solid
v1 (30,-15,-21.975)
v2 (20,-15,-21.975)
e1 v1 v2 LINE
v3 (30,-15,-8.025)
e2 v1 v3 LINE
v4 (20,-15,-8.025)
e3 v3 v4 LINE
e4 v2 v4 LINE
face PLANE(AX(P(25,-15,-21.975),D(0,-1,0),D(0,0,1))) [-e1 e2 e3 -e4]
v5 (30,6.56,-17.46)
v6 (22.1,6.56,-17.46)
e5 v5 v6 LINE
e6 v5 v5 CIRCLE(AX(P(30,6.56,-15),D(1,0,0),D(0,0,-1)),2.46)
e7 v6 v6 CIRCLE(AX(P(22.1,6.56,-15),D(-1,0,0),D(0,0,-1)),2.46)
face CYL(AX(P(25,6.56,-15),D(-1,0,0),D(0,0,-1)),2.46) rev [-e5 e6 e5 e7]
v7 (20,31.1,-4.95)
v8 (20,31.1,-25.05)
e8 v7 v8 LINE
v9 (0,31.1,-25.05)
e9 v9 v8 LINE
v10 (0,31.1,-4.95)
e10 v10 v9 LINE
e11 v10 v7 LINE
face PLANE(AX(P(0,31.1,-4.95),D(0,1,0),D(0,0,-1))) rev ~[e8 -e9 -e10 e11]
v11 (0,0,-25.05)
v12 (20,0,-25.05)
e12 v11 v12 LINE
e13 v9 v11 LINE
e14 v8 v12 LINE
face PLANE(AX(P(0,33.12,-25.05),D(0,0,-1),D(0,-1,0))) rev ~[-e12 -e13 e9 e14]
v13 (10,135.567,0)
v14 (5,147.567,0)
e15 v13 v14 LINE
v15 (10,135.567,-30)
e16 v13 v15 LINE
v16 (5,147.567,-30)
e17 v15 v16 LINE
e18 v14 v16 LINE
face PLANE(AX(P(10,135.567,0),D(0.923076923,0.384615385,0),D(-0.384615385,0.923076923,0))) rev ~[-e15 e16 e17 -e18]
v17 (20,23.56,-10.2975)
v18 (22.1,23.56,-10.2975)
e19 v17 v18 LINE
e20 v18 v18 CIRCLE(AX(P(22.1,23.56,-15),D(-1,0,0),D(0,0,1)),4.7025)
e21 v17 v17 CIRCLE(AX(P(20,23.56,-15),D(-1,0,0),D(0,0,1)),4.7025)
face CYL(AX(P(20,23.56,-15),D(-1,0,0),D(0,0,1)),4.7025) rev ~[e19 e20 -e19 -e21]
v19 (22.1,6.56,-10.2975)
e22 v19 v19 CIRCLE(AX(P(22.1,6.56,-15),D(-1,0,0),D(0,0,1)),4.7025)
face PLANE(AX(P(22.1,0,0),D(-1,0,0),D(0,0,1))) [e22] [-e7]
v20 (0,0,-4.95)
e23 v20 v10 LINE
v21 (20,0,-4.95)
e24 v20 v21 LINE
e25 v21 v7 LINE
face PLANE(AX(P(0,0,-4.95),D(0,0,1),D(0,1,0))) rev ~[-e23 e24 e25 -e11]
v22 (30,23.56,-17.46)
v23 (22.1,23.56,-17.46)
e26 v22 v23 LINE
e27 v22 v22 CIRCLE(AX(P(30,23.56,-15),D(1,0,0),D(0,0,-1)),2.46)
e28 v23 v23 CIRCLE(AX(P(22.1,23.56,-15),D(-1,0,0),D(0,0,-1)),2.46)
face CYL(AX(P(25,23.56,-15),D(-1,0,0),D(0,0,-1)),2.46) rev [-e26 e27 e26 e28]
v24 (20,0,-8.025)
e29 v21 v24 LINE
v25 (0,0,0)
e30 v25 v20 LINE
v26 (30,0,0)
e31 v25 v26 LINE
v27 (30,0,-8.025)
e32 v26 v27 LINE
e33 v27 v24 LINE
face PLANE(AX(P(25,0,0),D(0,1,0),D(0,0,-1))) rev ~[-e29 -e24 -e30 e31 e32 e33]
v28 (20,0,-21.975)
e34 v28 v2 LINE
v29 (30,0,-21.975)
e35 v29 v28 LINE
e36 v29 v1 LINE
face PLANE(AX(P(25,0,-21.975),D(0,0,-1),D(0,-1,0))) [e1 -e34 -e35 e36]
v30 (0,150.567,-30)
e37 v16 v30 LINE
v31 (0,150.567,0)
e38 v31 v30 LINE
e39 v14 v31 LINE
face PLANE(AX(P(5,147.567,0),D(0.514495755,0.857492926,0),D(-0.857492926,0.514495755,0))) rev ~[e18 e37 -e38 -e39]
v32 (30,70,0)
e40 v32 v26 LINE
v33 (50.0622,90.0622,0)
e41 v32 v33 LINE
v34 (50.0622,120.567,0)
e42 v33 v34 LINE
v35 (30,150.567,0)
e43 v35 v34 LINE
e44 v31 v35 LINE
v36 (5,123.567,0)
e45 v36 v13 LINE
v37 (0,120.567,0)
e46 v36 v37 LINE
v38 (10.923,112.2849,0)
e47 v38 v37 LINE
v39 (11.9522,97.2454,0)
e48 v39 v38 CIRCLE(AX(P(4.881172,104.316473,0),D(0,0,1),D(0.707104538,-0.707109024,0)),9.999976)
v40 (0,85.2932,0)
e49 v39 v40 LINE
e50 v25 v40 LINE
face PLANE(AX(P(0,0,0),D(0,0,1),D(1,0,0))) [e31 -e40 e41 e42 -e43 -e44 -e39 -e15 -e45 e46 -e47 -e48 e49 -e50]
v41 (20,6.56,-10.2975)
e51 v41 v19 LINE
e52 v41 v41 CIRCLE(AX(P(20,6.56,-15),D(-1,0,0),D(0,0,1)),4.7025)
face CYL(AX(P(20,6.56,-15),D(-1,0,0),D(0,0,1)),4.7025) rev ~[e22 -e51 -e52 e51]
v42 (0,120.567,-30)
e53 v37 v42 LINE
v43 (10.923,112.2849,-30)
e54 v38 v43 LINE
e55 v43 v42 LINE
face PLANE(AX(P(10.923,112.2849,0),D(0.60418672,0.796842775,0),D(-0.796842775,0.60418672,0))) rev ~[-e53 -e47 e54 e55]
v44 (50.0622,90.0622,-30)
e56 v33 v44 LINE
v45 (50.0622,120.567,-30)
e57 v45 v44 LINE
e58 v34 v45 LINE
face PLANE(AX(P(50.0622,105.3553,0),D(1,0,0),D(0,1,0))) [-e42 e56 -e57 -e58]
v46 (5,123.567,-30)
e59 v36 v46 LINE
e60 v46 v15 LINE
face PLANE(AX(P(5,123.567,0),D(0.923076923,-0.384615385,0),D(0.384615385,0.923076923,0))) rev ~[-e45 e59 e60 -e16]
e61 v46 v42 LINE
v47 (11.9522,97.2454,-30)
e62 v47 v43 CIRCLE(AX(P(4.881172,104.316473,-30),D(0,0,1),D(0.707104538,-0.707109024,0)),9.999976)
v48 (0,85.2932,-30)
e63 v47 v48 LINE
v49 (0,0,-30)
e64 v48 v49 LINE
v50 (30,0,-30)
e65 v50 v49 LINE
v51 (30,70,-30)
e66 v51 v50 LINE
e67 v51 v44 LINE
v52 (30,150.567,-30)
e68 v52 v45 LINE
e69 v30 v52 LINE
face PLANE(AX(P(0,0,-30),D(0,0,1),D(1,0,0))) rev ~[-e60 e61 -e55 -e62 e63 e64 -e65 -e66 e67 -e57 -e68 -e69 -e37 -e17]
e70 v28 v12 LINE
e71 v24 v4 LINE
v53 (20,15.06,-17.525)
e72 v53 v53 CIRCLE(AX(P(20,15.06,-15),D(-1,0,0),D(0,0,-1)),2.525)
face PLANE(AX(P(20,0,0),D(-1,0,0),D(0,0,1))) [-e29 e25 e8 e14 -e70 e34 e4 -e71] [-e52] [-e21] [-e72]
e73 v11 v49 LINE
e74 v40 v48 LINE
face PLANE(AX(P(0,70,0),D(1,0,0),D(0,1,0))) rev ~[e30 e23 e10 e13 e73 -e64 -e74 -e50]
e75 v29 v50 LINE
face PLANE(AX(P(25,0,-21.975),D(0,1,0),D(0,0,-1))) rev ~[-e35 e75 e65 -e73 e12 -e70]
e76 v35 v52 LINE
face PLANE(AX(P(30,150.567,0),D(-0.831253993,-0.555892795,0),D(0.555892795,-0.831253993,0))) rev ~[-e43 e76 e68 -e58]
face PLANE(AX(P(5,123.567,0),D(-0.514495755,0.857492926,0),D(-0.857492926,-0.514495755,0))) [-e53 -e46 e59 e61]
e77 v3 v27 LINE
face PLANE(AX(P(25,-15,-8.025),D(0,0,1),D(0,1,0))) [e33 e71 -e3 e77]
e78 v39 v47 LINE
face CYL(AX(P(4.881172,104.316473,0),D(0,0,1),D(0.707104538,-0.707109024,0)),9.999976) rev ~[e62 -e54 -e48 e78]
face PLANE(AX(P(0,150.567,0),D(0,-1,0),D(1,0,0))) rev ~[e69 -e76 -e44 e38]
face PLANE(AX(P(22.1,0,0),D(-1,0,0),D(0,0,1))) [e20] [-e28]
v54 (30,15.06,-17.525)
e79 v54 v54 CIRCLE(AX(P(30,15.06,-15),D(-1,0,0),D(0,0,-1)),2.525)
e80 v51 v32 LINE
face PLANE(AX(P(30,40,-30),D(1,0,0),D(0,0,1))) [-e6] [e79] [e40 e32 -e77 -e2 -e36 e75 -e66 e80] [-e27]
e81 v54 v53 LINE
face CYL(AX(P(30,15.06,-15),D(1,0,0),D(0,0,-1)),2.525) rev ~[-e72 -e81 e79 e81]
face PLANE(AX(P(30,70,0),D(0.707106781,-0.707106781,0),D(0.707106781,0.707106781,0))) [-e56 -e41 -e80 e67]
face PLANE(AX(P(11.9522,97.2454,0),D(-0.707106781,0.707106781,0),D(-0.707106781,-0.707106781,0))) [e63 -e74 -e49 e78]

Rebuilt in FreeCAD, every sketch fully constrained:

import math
import FreeCAD as App
import Part
import Sketcher
from FreeCAD import Vector
Q = App.Units.Quantity

doc = App.newDocument("Part")
body = doc.addObject("PartDesign::Body", "Body")

sketch1 = body.newObject("Sketcher::SketchObject", "Sketch")
sketch1.AttachmentSupport = (doc.getObject("XY_Plane"), [""])
sketch1.MapMode = "FlatFace"
sketch1.addGeometry(Part.LineSegment(Vector(0, 40, 0), Vector(0, 0, 0)), False)
sketch1.addGeometry(Part.LineSegment(Vector(0, 0, 0), Vector(25, 0, 0)), False)
sketch1.addGeometry(Part.LineSegment(Vector(25, 0, 0), Vector(25, 40, 0)), False)
sketch1.addGeometry(Part.LineSegment(Vector(25, 40, 0), Vector(0, 40, 0)), False)
sketch1.addConstraint(Sketcher.Constraint("Coincident", 0, 2, 1, 1))
sketch1.addConstraint(Sketcher.Constraint("Coincident", 1, 2, 2, 1))
sketch1.addConstraint(Sketcher.Constraint("Coincident", 2, 2, 3, 1))
sketch1.addConstraint(Sketcher.Constraint("Coincident", 3, 2, 0, 1))
sketch1.addConstraint(Sketcher.Constraint("Vertical", 0))
sketch1.addConstraint(Sketcher.Constraint("Horizontal", 1))
sketch1.addConstraint(Sketcher.Constraint("Vertical", 2))
sketch1.addConstraint(Sketcher.Constraint("Horizontal", 3))
sketch1.addConstraint(Sketcher.Constraint("Coincident", 0, 2, -1, 1))
sketch1.addConstraint(Sketcher.Constraint("DistanceX", 1, 1, 1, 2, Q("25 mm")))
sketch1.addConstraint(Sketcher.Constraint("DistanceY", 0, 2, 0, 1, Q("40 mm")))
pad1 = body.newObject("PartDesign::Pad", "Pad")
pad1.Profile = sketch1
pad1.Length = 30
pad1.Reversed = True

sketch2 = body.newObject("Sketcher::SketchObject", "Sketch001")
sketch2.AttachmentSupport = (doc.getObject("YZ_Plane"), [""])
sketch2.MapMode = "FlatFace"
sketch2.AttachmentOffset = App.Placement(Vector(0, 0, 25), App.Rotation())
sketch2.addGeometry(Part.Circle(Vector(6.6, -15, 0), Vector(0, 0, 1), 2.5), False)
sketch2.addConstraint(Sketcher.Constraint("Diameter", 0, Q("4.92 mm")))
sketch2.addConstraint(Sketcher.Constraint("DistanceY", 0, 3, -1, 1, Q("15 mm")))
sketch2.addConstraint(Sketcher.Constraint("DistanceX", -1, 1, 0, 3, Q("6.56 mm")))
pocket1 = body.newObject("PartDesign::Pocket", "Pocket")
pocket1.Profile = sketch2
pocket1.Length = 30

sketch3 = body.newObject("Sketcher::SketchObject", "Sketch002")
sketch3.AttachmentSupport = (doc.getObject("YZ_Plane"), [""])
sketch3.MapMode = "FlatFace"
sketch3.addGeometry(Part.LineSegment(Vector(0, -25, 0), Vector(0, -5, 0)), False)
sketch3.addGeometry(Part.LineSegment(Vector(0, -5, 0), Vector(33, -5, 0)), False)
sketch3.addGeometry(Part.LineSegment(Vector(33, -5, 0), Vector(33, -25, 0)), False)
sketch3.addGeometry(Part.LineSegment(Vector(33, -25, 0), Vector(0, -25, 0)), False)
sketch3.addConstraint(Sketcher.Constraint("Coincident", 0, 2, 1, 1))
sketch3.addConstraint(Sketcher.Constraint("Coincident", 1, 2, 2, 1))
sketch3.addConstraint(Sketcher.Constraint("Coincident", 2, 2, 3, 1))
sketch3.addConstraint(Sketcher.Constraint("Coincident", 3, 2, 0, 1))
sketch3.addConstraint(Sketcher.Constraint("Vertical", 0))
sketch3.addConstraint(Sketcher.Constraint("Horizontal", 1))
sketch3.addConstraint(Sketcher.Constraint("Vertical", 2))
sketch3.addConstraint(Sketcher.Constraint("Horizontal", 3))
sketch3.addConstraint(Sketcher.Constraint("PointOnObject", 0, 2, -2))
sketch3.addConstraint(Sketcher.Constraint("DistanceY", 0, 1, 0, 2, Q("20.1 mm")))
sketch3.addConstraint(Sketcher.Constraint("DistanceX", 1, 1, 1, 2, Q("33.12 mm")))
sketch3.addConstraint(Sketcher.Constraint("DistanceY", 0, 2, -1, 1, Q("4.95 mm")))
pocket2 = body.newObject("PartDesign::Pocket", "Pocket001")
pocket2.Profile = sketch3
pocket2.Length = 20
pocket2.Reversed = True

sketch4 = body.newObject("Sketcher::SketchObject", "Sketch003")
sketch4.AttachmentSupport = (doc.getObject("XZ_Plane"), [""])
sketch4.MapMode = "FlatFace"
sketch4.addGeometry(Part.LineSegment(Vector(25, -8, 0), Vector(20, -8, 0)), False)
sketch4.addGeometry(Part.LineSegment(Vector(20, -8, 0), Vector(20, -22, 0)), False)
sketch4.addGeometry(Part.LineSegment(Vector(20, -22, 0), Vector(25, -22, 0)), False)
sketch4.addGeometry(Part.LineSegment(Vector(25, -22, 0), Vector(25, -8, 0)), False)
sketch4.addConstraint(Sketcher.Constraint("Coincident", 0, 2, 1, 1))
sketch4.addConstraint(Sketcher.Constraint("Coincident", 1, 2, 2, 1))
sketch4.addConstraint(Sketcher.Constraint("Coincident", 2, 2, 3, 1))
sketch4.addConstraint(Sketcher.Constraint("Coincident", 3, 2, 0, 1))
sketch4.addConstraint(Sketcher.Constraint("Horizontal", 0))
sketch4.addConstraint(Sketcher.Constraint("Vertical", 1))
sketch4.addConstraint(Sketcher.Constraint("Horizontal", 2))
sketch4.addConstraint(Sketcher.Constraint("Vertical", 3))
sketch4.addConstraint(Sketcher.Constraint("DistanceY", 1, 2, 1, 1, Q("13.95 mm")))
sketch4.addConstraint(Sketcher.Constraint("DistanceX", 0, 2, 0, 1, Q("5 mm")))
sketch4.addConstraint(Sketcher.Constraint("DistanceX", -1, 1, 0, 2, Q("20 mm")))
sketch4.addConstraint(Sketcher.Constraint("DistanceY", 0, 2, -1, 1, Q("8.025 mm")))
pad2 = body.newObject("PartDesign::Pad", "Pad001")
pad2.Profile = sketch4
pad2.Length = 15

sketch5 = body.newObject("Sketcher::SketchObject", "Sketch004")
sketch5.AttachmentSupport = (doc.getObject("YZ_Plane"), [""])
sketch5.MapMode = "FlatFace"
sketch5.AttachmentOffset = App.Placement(Vector(0, 0, 20), App.Rotation())
sketch5.addGeometry(Part.Circle(Vector(6.6, -15, 0), Vector(0, 0, 1), 4.7), False)
sketch5.addGeometry(Part.Circle(Vector(6.6, -15, 0), Vector(0, 0, 1), 2.5), False)
sketch5.addConstraint(Sketcher.Constraint("Coincident", 1, 3, 0, 3))
sketch5.addConstraint(Sketcher.Constraint("Diameter", 0, Q("9.405 mm")))
sketch5.addConstraint(Sketcher.Constraint("Diameter", 1, Q("4.92 mm")))
sketch5.addConstraint(Sketcher.Constraint("DistanceY", 0, 3, -1, 1, Q("15 mm")))
sketch5.addConstraint(Sketcher.Constraint("DistanceX", -1, 1, 0, 3, Q("6.56 mm")))
pocket3 = body.newObject("PartDesign::Pocket", "Pocket002")
pocket3.Profile = sketch5
pocket3.Length = 2.1
pocket3.Reversed = True

sketch6 = body.newObject("Sketcher::SketchObject", "Sketch005")
sketch6.AttachmentSupport = (doc.getObject("YZ_Plane"), [""])
sketch6.MapMode = "FlatFace"
sketch6.AttachmentOffset = App.Placement(Vector(0, 0, 25), App.Rotation())
sketch6.addGeometry(Part.Circle(Vector(23.6, -15, 0), Vector(0, 0, 1), 2.5), False)
sketch6.addConstraint(Sketcher.Constraint("Diameter", 0, Q("4.92 mm")))
sketch6.addConstraint(Sketcher.Constraint("DistanceY", 0, 3, -1, 1, Q("15 mm")))
sketch6.addConstraint(Sketcher.Constraint("DistanceX", -1, 1, 0, 3, Q("23.56 mm")))
pocket4 = body.newObject("PartDesign::Pocket", "Pocket003")
pocket4.Profile = sketch6
pocket4.Length = 10

sketch7 = body.newObject("Sketcher::SketchObject", "Sketch006")
sketch7.AttachmentSupport = (doc.getObject("YZ_Plane"), [""])
sketch7.MapMode = "FlatFace"
sketch7.AttachmentOffset = App.Placement(Vector(0, 0, 20), App.Rotation())
sketch7.addGeometry(Part.Circle(Vector(23.6, -15, 0), Vector(0, 0, 1), 4.7), False)
sketch7.addGeometry(Part.Circle(Vector(23.6, -15, 0), Vector(0, 0, 1), 2.5), False)
sketch7.addConstraint(Sketcher.Constraint("Coincident", 1, 3, 0, 3))
sketch7.addConstraint(Sketcher.Constraint("Diameter", 0, Q("9.405 mm")))
sketch7.addConstraint(Sketcher.Constraint("Diameter", 1, Q("4.92 mm")))
sketch7.addConstraint(Sketcher.Constraint("DistanceY", 0, 3, -1, 1, Q("15 mm")))
sketch7.addConstraint(Sketcher.Constraint("DistanceX", -1, 1, 0, 3, Q("23.56 mm")))
pocket5 = body.newObject("PartDesign::Pocket", "Pocket004")
pocket5.Profile = sketch7
pocket5.Length = 2.1
pocket5.Reversed = True

sketch8 = body.newObject("Sketcher::SketchObject", "Sketch007")
sketch8.AttachmentSupport = (doc.getObject("YZ_Plane"), [""])
sketch8.MapMode = "FlatFace"
sketch8.AttachmentOffset = App.Placement(Vector(0, 0, 25), App.Rotation())
sketch8.addGeometry(Part.LineSegment(Vector(0, -30, 0), Vector(40, -30, 0)), False)
sketch8.addGeometry(Part.LineSegment(Vector(40, -30, 0), Vector(40, 0, 0)), False)
sketch8.addGeometry(Part.LineSegment(Vector(40, 0, 0), Vector(0, 0, 0)), False)
sketch8.addGeometry(Part.LineSegment(Vector(0, 0, 0), Vector(0, -8, 0)), False)
sketch8.addGeometry(Part.LineSegment(Vector(0, -8, 0), Vector(-15, -8, 0)), False)
sketch8.addGeometry(Part.LineSegment(Vector(-15, -8, 0), Vector(-15, -22, 0)), False)
sketch8.addGeometry(Part.LineSegment(Vector(-15, -22, 0), Vector(0, -22, 0)), False)
sketch8.addGeometry(Part.LineSegment(Vector(0, -22, 0), Vector(0, -30, 0)), False)
sketch8.addGeometry(Part.Circle(Vector(6.6, -15, 0), Vector(0, 0, 1), 2.5), False)
sketch8.addGeometry(Part.Circle(Vector(23.6, -15, 0), Vector(0, 0, 1), 2.5), False)
sketch8.addConstraint(Sketcher.Constraint("Coincident", 0, 2, 1, 1))
sketch8.addConstraint(Sketcher.Constraint("Coincident", 1, 2, 2, 1))
sketch8.addConstraint(Sketcher.Constraint("Coincident", 2, 2, 3, 1))
sketch8.addConstraint(Sketcher.Constraint("Coincident", 3, 2, 4, 1))
sketch8.addConstraint(Sketcher.Constraint("Coincident", 4, 2, 5, 1))
sketch8.addConstraint(Sketcher.Constraint("Coincident", 5, 2, 6, 1))
sketch8.addConstraint(Sketcher.Constraint("Coincident", 6, 2, 7, 1))
sketch8.addConstraint(Sketcher.Constraint("Coincident", 7, 2, 0, 1))
sketch8.addConstraint(Sketcher.Constraint("Horizontal", 0))
sketch8.addConstraint(Sketcher.Constraint("Vertical", 1))
sketch8.addConstraint(Sketcher.Constraint("Horizontal", 2))
sketch8.addConstraint(Sketcher.Constraint("Vertical", 3))
sketch8.addConstraint(Sketcher.Constraint("Horizontal", 4))
sketch8.addConstraint(Sketcher.Constraint("Vertical", 5))
sketch8.addConstraint(Sketcher.Constraint("Horizontal", 6))
sketch8.addConstraint(Sketcher.Constraint("Vertical", 7))
sketch8.addConstraint(Sketcher.Constraint("Coincident", 2, 2, -1, 1))
sketch8.addConstraint(Sketcher.Constraint("Equal", 8, 9))
sketch8.addConstraint(Sketcher.Constraint("PointOnObject", 6, 2, -2))
sketch8.addConstraint(Sketcher.Constraint("Horizontal", 8, 3, 9, 3))
sketch8.addConstraint(Sketcher.Constraint("Equal", 3, 7))
sketch8.addConstraint(Sketcher.Constraint("Diameter", 8, Q("4.92 mm")))
sketch8.addConstraint(Sketcher.Constraint("DistanceX", 0, 1, 0, 2, Q("40 mm")))
sketch8.addConstraint(Sketcher.Constraint("DistanceX", 4, 2, 4, 1, Q("15 mm")))
sketch8.addConstraint(Sketcher.Constraint("DistanceY", 1, 1, 1, 2, Q("30 mm")))
sketch8.addConstraint(Sketcher.Constraint("DistanceY", 8, 3, -1, 1, Q("15 mm")))
sketch8.addConstraint(Sketcher.Constraint("DistanceX", 8, 3, 9, 3, Q("17 mm")))
sketch8.addConstraint(Sketcher.Constraint("DistanceY", 5, 2, 5, 1, Q("13.95 mm")))
sketch8.addConstraint(Sketcher.Constraint("DistanceX", -1, 1, 8, 3, Q("6.56 mm")))
pad3 = body.newObject("PartDesign::Pad", "Pad002")
pad3.Profile = sketch8
pad3.Length = 5

sketch9 = body.newObject("Sketcher::SketchObject", "Sketch008")
sketch9.AttachmentSupport = (doc.getObject("XZ_Plane"), [""])
sketch9.MapMode = "FlatFace"
sketch9.AttachmentOffset = App.Placement(Vector(0, 0, -40), App.Rotation())
sketch9.addGeometry(Part.LineSegment(Vector(30, -30, 0), Vector(0, -30, 0)), False)
sketch9.addGeometry(Part.LineSegment(Vector(0, -30, 0), Vector(0, 0, 0)), False)
sketch9.addGeometry(Part.LineSegment(Vector(0, 0, 0), Vector(30, 0, 0)), False)
sketch9.addGeometry(Part.LineSegment(Vector(30, 0, 0), Vector(30, -30, 0)), False)
sketch9.addConstraint(Sketcher.Constraint("Coincident", 0, 2, 1, 1))
sketch9.addConstraint(Sketcher.Constraint("Coincident", 1, 2, 2, 1))
sketch9.addConstraint(Sketcher.Constraint("Coincident", 2, 2, 3, 1))
sketch9.addConstraint(Sketcher.Constraint("Coincident", 3, 2, 0, 1))
sketch9.addConstraint(Sketcher.Constraint("Horizontal", 0))
sketch9.addConstraint(Sketcher.Constraint("Vertical", 1))
sketch9.addConstraint(Sketcher.Constraint("Horizontal", 2))
sketch9.addConstraint(Sketcher.Constraint("Vertical", 3))
sketch9.addConstraint(Sketcher.Constraint("Coincident", 1, 2, -1, 1))
sketch9.addConstraint(Sketcher.Constraint("Equal", 2, 1))
sketch9.addConstraint(Sketcher.Constraint("DistanceX", 0, 2, 0, 1, Q("30 mm")))
pad4 = body.newObject("PartDesign::Pad", "Pad003")
pad4.Profile = sketch9
pad4.Length = 30
pad4.Reversed = True

sketch10 = body.newObject("Sketcher::SketchObject", "Sketch009")
sketch10.AttachmentSupport = (doc.getObject("YZ_Plane"), [""])
sketch10.MapMode = "FlatFace"
sketch10.AttachmentOffset = App.Placement(Vector(0, 0, 30), App.Rotation())
sketch10.addGeometry(Part.Circle(Vector(15.1, -15, 0), Vector(0, 0, 1), 2.5), False)
sketch10.addConstraint(Sketcher.Constraint("Diameter", 0, Q("5.05 mm")))
sketch10.addConstraint(Sketcher.Constraint("DistanceY", 0, 3, -1, 1, Q("15 mm")))
sketch10.addConstraint(Sketcher.Constraint("DistanceX", -1, 1, 0, 3, Q("15.06 mm")))
pocket6 = body.newObject("PartDesign::Pocket", "Pocket005")
pocket6.Profile = sketch10
pocket6.Length = 30

sketch11 = body.newObject("Sketcher::SketchObject", "Sketch010")
sketch11.AttachmentSupport = (doc.getObject("YZ_Plane"), [""])
sketch11.MapMode = "FlatFace"
sketch11.addGeometry(Part.LineSegment(Vector(33.1, -5, 0), Vector(33.1, -25.1, 0)), False)
sketch11.addGeometry(Part.LineSegment(Vector(33.1, -25.1, 0), Vector(31.1, -25.1, 0)), False)
sketch11.addGeometry(Part.LineSegment(Vector(31.1, -25.1, 0), Vector(31.1, -5, 0)), False)
sketch11.addGeometry(Part.LineSegment(Vector(31.1, -5, 0), Vector(33.1, -5, 0)), False)
sketch11.addConstraint(Sketcher.Constraint("Coincident", 0, 2, 1, 1))
sketch11.addConstraint(Sketcher.Constraint("Coincident", 1, 2, 2, 1))
sketch11.addConstraint(Sketcher.Constraint("Coincident", 2, 2, 3, 1))
sketch11.addConstraint(Sketcher.Constraint("Coincident", 3, 2, 0, 1))
sketch11.addConstraint(Sketcher.Constraint("Vertical", 0))
sketch11.addConstraint(Sketcher.Constraint("Horizontal", 1))
sketch11.addConstraint(Sketcher.Constraint("Vertical", 2))
sketch11.addConstraint(Sketcher.Constraint("Horizontal", 3))
sketch11.addConstraint(Sketcher.Constraint("DistanceX", 1, 2, 1, 1, Q("2.02 mm")))
sketch11.addConstraint(Sketcher.Constraint("DistanceY", 0, 2, 0, 1, Q("20.1 mm")))
sketch11.addConstraint(Sketcher.Constraint("DistanceX", -1, 1, 1, 2, Q("31.1 mm")))
sketch11.addConstraint(Sketcher.Constraint("DistanceY", 0, 2, -1, 1, Q("25.05 mm")))
pad5 = body.newObject("PartDesign::Pad", "Pad004")
pad5.Profile = sketch11
pad5.Length = 20

sketch12 = body.newObject("Sketcher::SketchObject", "Sketch011")
sketch12.AttachmentSupport = (doc.getObject("XY_Plane"), [""])
sketch12.MapMode = "FlatFace"
sketch12.addGeometry(Part.LineSegment(Vector(0, 85, 0), Vector(0, 70, 0)), False)
sketch12.addGeometry(Part.LineSegment(Vector(0, 70, 0), Vector(30, 70, 0)), False)
sketch12.addGeometry(Part.LineSegment(Vector(30, 70, 0), Vector(50, 90, 0)), False)
sketch12.addGeometry(Part.LineSegment(Vector(50, 90, 0), Vector(50, 121, 0)), False)
sketch12.addGeometry(Part.LineSegment(Vector(50, 121, 0), Vector(30, 151, 0)), False)
sketch12.addGeometry(Part.LineSegment(Vector(30, 151, 0), Vector(0, 151, 0)), False)
sketch12.addGeometry(Part.LineSegment(Vector(0, 151, 0), Vector(5, 148, 0)), False)
sketch12.addGeometry(Part.LineSegment(Vector(5, 148, 0), Vector(10, 136, 0)), False)
sketch12.addGeometry(Part.LineSegment(Vector(10, 136, 0), Vector(5, 124, 0)), False)
sketch12.addGeometry(Part.LineSegment(Vector(5, 124, 0), Vector(0, 121, 0)), False)
sketch12.addGeometry(Part.LineSegment(Vector(0, 121, 0), Vector(11, 112, 0)), False)
sketch12.addGeometry(Part.ArcOfCircle(Part.Circle(Vector(5, 104, 0), Vector(0, 0, 1), 10), math.radians(-45), math.radians(53)), False)
sketch12.addGeometry(Part.LineSegment(Vector(12, 97, 0), Vector(0, 85, 0)), False)
sketch12.addConstraint(Sketcher.Constraint("Coincident", 0, 2, 1, 1))
sketch12.addConstraint(Sketcher.Constraint("Coincident", 1, 2, 2, 1))
sketch12.addConstraint(Sketcher.Constraint("Coincident", 2, 2, 3, 1))
sketch12.addConstraint(Sketcher.Constraint("Coincident", 3, 2, 4, 1))
sketch12.addConstraint(Sketcher.Constraint("Coincident", 4, 2, 5, 1))
sketch12.addConstraint(Sketcher.Constraint("Coincident", 5, 2, 6, 1))
sketch12.addConstraint(Sketcher.Constraint("Coincident", 6, 2, 7, 1))
sketch12.addConstraint(Sketcher.Constraint("Coincident", 7, 2, 8, 1))
sketch12.addConstraint(Sketcher.Constraint("Coincident", 8, 2, 9, 1))
sketch12.addConstraint(Sketcher.Constraint("Coincident", 9, 2, 10, 1))
sketch12.addConstraint(Sketcher.Constraint("Tangent", 10, 2, 11, 2))
sketch12.addConstraint(Sketcher.Constraint("Tangent", 11, 1, 12, 1))
sketch12.addConstraint(Sketcher.Constraint("Coincident", 12, 2, 0, 1))
sketch12.addConstraint(Sketcher.Constraint("Vertical", 0))
sketch12.addConstraint(Sketcher.Constraint("Horizontal", 1))
sketch12.addConstraint(Sketcher.Constraint("Vertical", 3))
sketch12.addConstraint(Sketcher.Constraint("Horizontal", 5))
sketch12.addConstraint(Sketcher.Constraint("PointOnObject", 0, 2, -2))
sketch12.addConstraint(Sketcher.Constraint("PointOnObject", 5, 2, -2))
sketch12.addConstraint(Sketcher.Constraint("PointOnObject", 9, 2, -2))
sketch12.addConstraint(Sketcher.Constraint("Parallel", 2, 12))
sketch12.addConstraint(Sketcher.Constraint("Horizontal", 3, 2, 9, 2))
sketch12.addConstraint(Sketcher.Constraint("Vertical", 1, 2, 4, 2))
sketch12.addConstraint(Sketcher.Constraint("Vertical", 6, 2, 8, 2))
sketch12.addConstraint(Sketcher.Constraint("Equal", 7, 8))
sketch12.addConstraint(Sketcher.Constraint("Equal", 6, 9))
sketch12.addConstraint(Sketcher.Constraint("Radius", 11, Q("10 mm")))
sketch12.addConstraint(Sketcher.Constraint("Angle", 2, Q("45 deg")))
sketch12.addConstraint(Sketcher.Constraint("DistanceX", -1, 1, 7, 2, Q("10 mm")))
sketch12.addConstraint(Sketcher.Constraint("DistanceX", 1, 1, 1, 2, Q("30 mm")))
sketch12.addConstraint(Sketcher.Constraint("Distance", 7, Q("13 mm")))
sketch12.addConstraint(Sketcher.Constraint("DistanceY", -1, 1, 0, 2, Q("70 mm")))
sketch12.addConstraint(Sketcher.Constraint("DistanceX", -1, 1, 6, 2, Q("5 mm")))
sketch12.addConstraint(Sketcher.Constraint("DistanceY", 3, 2, 4, 2, Q("30 mm")))
sketch12.addConstraint(Sketcher.Constraint("Angle", 10, Q("-37.1703 deg")))
sketch12.addConstraint(Sketcher.Constraint("Distance", 4, Q("36.09 mm")))
sketch12.addConstraint(Sketcher.Constraint("Distance", 12, Q("16.903 mm")))
sketch12.addConstraint(Sketcher.Constraint("DistanceY", 0, 2, 0, 1, Q("15.2932 mm")))
pad6 = body.newObject("PartDesign::Pad", "Pad005")
pad6.Profile = sketch12
pad6.Length = 30
pad6.Reversed = True

doc.recompute()
